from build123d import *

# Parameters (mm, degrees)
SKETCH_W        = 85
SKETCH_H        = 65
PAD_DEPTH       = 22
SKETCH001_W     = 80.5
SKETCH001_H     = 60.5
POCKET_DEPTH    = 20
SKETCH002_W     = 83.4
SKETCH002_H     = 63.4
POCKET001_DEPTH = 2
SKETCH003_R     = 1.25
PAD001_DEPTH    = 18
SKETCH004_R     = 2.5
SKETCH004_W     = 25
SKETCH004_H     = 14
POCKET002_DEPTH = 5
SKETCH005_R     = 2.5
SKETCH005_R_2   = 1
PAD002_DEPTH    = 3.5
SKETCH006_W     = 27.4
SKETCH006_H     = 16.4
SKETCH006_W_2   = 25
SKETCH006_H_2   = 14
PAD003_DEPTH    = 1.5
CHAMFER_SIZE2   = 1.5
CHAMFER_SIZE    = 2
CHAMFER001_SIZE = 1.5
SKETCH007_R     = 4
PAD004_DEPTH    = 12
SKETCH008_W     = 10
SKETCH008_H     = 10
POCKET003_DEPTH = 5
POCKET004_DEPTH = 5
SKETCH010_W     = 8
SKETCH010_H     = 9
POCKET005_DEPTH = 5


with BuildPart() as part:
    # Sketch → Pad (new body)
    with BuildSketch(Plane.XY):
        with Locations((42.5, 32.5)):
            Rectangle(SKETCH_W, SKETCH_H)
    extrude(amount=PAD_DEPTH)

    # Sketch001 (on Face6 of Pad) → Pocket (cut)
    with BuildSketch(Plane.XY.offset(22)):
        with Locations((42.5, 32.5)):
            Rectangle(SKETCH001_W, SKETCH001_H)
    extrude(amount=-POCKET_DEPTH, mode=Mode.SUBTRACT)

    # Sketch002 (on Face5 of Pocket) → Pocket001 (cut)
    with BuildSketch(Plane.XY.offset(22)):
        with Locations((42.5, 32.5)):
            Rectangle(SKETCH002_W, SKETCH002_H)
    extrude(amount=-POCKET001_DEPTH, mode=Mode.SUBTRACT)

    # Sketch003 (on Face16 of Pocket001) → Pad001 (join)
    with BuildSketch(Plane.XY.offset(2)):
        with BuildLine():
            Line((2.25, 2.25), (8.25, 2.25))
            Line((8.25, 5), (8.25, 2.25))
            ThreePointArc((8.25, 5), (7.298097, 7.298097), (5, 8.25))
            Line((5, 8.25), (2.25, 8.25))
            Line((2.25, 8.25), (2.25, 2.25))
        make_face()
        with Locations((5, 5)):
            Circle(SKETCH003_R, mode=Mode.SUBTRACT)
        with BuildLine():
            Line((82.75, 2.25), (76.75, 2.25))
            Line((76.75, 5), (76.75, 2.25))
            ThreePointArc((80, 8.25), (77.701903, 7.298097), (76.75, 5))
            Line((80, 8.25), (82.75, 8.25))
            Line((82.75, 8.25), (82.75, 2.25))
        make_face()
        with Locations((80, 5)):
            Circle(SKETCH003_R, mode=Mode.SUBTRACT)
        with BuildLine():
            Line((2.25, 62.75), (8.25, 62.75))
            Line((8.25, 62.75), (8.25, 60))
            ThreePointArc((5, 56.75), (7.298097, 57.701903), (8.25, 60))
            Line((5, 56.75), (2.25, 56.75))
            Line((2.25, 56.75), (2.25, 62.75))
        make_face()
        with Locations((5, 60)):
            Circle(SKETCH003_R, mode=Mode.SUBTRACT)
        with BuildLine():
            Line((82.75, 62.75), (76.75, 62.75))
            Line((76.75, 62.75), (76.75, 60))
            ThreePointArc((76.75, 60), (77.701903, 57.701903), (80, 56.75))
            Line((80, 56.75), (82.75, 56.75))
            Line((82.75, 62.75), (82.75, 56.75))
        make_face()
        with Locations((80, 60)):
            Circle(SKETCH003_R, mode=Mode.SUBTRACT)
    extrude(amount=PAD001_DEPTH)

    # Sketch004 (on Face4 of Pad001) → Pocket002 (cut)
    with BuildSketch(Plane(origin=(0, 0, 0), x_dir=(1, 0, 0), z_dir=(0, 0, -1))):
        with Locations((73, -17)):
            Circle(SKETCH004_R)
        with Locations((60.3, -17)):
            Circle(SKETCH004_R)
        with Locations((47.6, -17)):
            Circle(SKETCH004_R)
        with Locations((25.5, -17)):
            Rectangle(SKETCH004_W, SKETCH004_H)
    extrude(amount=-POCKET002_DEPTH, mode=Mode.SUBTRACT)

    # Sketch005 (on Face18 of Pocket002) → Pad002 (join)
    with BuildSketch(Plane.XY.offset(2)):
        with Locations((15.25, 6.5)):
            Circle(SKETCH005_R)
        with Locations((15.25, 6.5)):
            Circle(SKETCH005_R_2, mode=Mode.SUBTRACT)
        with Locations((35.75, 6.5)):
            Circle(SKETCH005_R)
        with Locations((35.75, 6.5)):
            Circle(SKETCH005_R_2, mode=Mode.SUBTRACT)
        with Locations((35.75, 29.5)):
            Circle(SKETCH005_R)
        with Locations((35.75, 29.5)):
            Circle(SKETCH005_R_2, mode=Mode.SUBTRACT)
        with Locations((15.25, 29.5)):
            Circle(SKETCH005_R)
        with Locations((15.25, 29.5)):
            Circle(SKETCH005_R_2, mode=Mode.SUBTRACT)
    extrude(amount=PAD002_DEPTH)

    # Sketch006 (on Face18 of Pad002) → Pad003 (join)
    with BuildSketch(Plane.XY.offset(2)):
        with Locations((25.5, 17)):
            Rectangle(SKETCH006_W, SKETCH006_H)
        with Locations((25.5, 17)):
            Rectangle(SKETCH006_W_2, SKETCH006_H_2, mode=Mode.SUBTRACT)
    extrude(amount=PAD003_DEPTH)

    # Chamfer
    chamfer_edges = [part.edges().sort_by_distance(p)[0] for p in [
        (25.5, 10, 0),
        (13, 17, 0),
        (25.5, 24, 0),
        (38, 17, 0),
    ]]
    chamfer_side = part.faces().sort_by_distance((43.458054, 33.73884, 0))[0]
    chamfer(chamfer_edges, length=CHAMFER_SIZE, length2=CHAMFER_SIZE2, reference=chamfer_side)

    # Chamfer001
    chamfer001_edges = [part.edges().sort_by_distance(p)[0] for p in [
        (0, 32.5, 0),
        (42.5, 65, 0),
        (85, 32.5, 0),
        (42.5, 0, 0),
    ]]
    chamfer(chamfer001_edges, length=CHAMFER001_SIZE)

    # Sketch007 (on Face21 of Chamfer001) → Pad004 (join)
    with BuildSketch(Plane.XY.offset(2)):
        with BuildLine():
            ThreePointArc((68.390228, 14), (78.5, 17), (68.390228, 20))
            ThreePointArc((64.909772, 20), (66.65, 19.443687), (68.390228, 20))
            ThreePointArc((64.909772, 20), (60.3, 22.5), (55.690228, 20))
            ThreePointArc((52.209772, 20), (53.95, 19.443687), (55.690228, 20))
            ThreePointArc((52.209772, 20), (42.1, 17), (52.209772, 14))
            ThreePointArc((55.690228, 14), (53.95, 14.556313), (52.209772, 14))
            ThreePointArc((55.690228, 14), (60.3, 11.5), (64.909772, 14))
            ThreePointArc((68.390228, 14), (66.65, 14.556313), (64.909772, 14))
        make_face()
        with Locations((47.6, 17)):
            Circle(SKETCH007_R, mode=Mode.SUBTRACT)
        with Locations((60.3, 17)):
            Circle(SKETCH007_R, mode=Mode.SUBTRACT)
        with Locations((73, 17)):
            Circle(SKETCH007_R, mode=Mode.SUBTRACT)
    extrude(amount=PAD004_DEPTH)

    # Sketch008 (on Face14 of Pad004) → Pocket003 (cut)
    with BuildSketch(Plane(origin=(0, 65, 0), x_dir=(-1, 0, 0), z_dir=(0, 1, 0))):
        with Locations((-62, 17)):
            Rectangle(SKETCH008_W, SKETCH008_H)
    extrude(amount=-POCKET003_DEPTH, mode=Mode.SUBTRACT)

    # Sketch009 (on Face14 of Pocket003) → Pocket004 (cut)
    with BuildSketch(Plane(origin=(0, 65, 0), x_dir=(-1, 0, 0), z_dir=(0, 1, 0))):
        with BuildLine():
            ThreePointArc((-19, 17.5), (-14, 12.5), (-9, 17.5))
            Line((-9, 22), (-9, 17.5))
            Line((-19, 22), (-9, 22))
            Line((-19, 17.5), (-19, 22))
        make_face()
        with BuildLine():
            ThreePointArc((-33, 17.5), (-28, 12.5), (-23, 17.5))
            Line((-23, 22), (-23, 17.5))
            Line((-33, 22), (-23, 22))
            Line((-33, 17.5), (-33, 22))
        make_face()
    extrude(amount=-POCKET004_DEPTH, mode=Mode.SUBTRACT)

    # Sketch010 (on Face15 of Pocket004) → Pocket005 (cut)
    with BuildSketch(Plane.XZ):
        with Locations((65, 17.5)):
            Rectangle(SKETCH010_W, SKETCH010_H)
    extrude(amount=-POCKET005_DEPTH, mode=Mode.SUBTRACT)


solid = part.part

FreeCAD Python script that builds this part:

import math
import FreeCAD as App
import Part
import Sketcher


def edges_at(feature, points):
    """Names of the edges that pass closest to the given points."""
    edges = feature.Shape.Edges
    near = lambda p: min(range(len(edges)), key=lambda i: edges[i].distToShape(Part.Vertex(*p))[0])
    return sorted({f"Edge{near(p) + 1}" for p in points})


def add_polygon(sketch, points):
    """Adds a closed chain of lines whose ends are joined by coincident constraints."""
    first, n = sketch.GeometryCount, len(points)
    for a, b in zip(points, points[1:] + points[:1]):
        sketch.addGeometry(Part.LineSegment(App.Vector(*a, 0), App.Vector(*b, 0)), False)
    for i in range(n):
        sketch.addConstraint(Sketcher.Constraint("Coincident", first + i, 2, first + (i + 1) % n, 1))

doc = App.newDocument("Part")
params = doc.addObject("Spreadsheet::Sheet", "Params")
for row, (alias, value) in enumerate([
    ("sketch1_width", "85 mm"),
    ("sketch1_height", "65 mm"),
    ("pad1_length", "22 mm"),
    ("sketch2_width", "80.5 mm"),
    ("sketch2_height", "60.5 mm"),
    ("pocket1_length", "20 mm"),
    ("sketch3_width", "83.4 mm"),
    ("sketch3_height", "63.4 mm"),
    ("pocket2_length", "2 mm"),
    ("sketch4_diameter", "2.5 mm"),
    ("sketch4_width", "6 mm"),
    ("sketch4_radius", "3.25 mm"),
    ("pad2_length", "18 mm"),
    ("sketch5_diameter", "5 mm"),
    ("sketch5_width", "25 mm"),
    ("sketch5_height", "14 mm"),
    ("pocket3_length", "5 mm"),
    ("sketch6_diameter", "5 mm"),
    ("sketch6_diameter2", "2 mm"),
    ("pad3_length", "3.5 mm"),
    ("sketch7_width", "25 mm"),
    ("sketch7_height", "14 mm"),
    ("sketch7_width2", "27.4 mm"),
    ("sketch7_height2", "16.4 mm"),
    ("pad4_length", "1.5 mm"),
    ("chamfer_size", "2 mm"),
    ("chamfer_size2", "1.5 mm"),
    ("chamfer2_size", "1.5 mm"),
    ("sketch8_diameter", "8 mm"),
    ("sketch8_radius", "3 mm"),
    ("sketch8_radius2", "5.5 mm"),
    ("pad5_length", "12 mm"),
    ("sketch9_width", "10 mm"),
    ("pocket4_length", "5 mm"),
    ("sketch10_radius", "5 mm"),
    ("sketch10_height", "4.5 mm"),
    ("pocket5_length", "5 mm"),
    ("sketch11_width", "8 mm"),
    ("sketch11_height", "9 mm"),
    ("pocket6_length", "5 mm"),
], start=1):
    params.set(f"A{row}", alias)
    params.set(f"B{row}", "=" + value)
    params.setAlias(f"B{row}", alias)

body = doc.addObject("PartDesign::Body", "Body")

sketch1 = body.newObject("Sketcher::SketchObject", "Sketch")
sketch1.AttachmentSupport = (doc.getObject("XY_Plane"), [""])
sketch1.MapMode = "FlatFace"
add_polygon(sketch1, [(0, 65), (0, 0), (85, 0), (85, 65)])
sketch1.addConstraint([
    Sketcher.Constraint("Vertical", 0),
    Sketcher.Constraint("Horizontal", 1),
    Sketcher.Constraint("Vertical", 2),
    Sketcher.Constraint("Horizontal", 3),
    Sketcher.Constraint("Coincident", 0, 2, -1, 1),
    Sketcher.Constraint("DistanceX", 1, 1, 1, 2, 85.0),
    Sketcher.Constraint("DistanceY", 0, 2, 0, 1, 65.0),
])
sketch1.setExpression("Constraints[9]", "Params.sketch1_width")
sketch1.setExpression("Constraints[10]", "Params.sketch1_height")
pad1 = body.newObject("PartDesign::Pad", "Pad")
pad1.Profile = sketch1
pad1.setExpression("Length", "Params.pad1_length")

sketch2 = body.newObject("Sketcher::SketchObject", "Sketch001")
sketch2.AttachmentSupport = (doc.getObject("XY_Plane"), [""])
sketch2.MapMode = "FlatFace"
sketch2.AttachmentOffset = App.Placement(App.Vector(0, 0, 22), App.Rotation())
add_polygon(sketch2, [(2, 63), (2, 2), (83, 2), (83, 63)])
sketch2.addConstraint([
    Sketcher.Constraint("Vertical", 0),
    Sketcher.Constraint("Horizontal", 1),
    Sketcher.Constraint("Vertical", 2),
    Sketcher.Constraint("Horizontal", 3),
    Sketcher.Constraint("DistanceX", 1, 1, 1, 2, 80.5),
    Sketcher.Constraint("DistanceY", 0, 2, 0, 1, 60.5),
    Sketcher.Constraint("DistanceX", -1, 1, 0, 2, 2.25),
    Sketcher.Constraint("DistanceY", -1, 1, 0, 2, 2.25),
])
sketch2.setExpression("Constraints[8]", "Params.sketch2_width")
sketch2.setExpression("Constraints[9]", "Params.sketch2_height")
pocket1 = body.newObject("PartDesign::Pocket", "Pocket")
pocket1.Profile = sketch2
pocket1.setExpression("Length", "Params.pocket1_length")

sketch3 = body.newObject("Sketcher::SketchObject", "Sketch002")
sketch3.AttachmentSupport = (doc.getObject("XY_Plane"), [""])
sketch3.MapMode = "FlatFace"
sketch3.AttachmentOffset = App.Placement(App.Vector(0, 0, 22), App.Rotation())
add_polygon(sketch3, [(1, 64), (1, 1), (84, 1), (84, 64)])
sketch3.addConstraint([
    Sketcher.Constraint("Vertical", 0),
    Sketcher.Constraint("Horizontal", 1),
    Sketcher.Constraint("Vertical", 2),
    Sketcher.Constraint("Horizontal", 3),
    Sketcher.Constraint("DistanceX", 1, 1, 1, 2, 83.4),
    Sketcher.Constraint("DistanceY", 0, 2, 0, 1, 63.4),
    Sketcher.Constraint("DistanceX", -1, 1, 0, 2, 0.8),
    Sketcher.Constraint("DistanceY", -1, 1, 0, 2, 0.8),
])
sketch3.setExpression("Constraints[8]", "Params.sketch3_width")
sketch3.setExpression("Constraints[9]", "Params.sketch3_height")
pocket2 = body.newObject("PartDesign::Pocket", "Pocket001")
pocket2.Profile = sketch3
pocket2.setExpression("Length", "Params.pocket2_length")

sketch4 = body.newObject("Sketcher::SketchObject", "Sketch003")
sketch4.AttachmentSupport = (doc.getObject("XY_Plane"), [""])
sketch4.MapMode = "FlatFace"
sketch4.AttachmentOffset = App.Placement(App.Vector(0, 0, 2), App.Rotation())
sketch4.addGeometry([
    Part.LineSegment(App.Vector(2.2, 2.2, 0), App.Vector(8.2, 2.2, 0)),
    Part.LineSegment(App.Vector(8.2, 2.2, 0), App.Vector(8.2, 5, 0)),
    Part.ArcOfCircle(Part.Circle(App.Vector(5, 5, 0), App.Vector(0, 0, 1), 3.3), math.radians(0), math.radians(90)),
    Part.LineSegment(App.Vector(5, 8.2, 0), App.Vector(2.2, 8.2, 0)),
    Part.LineSegment(App.Vector(2.2, 8.2, 0), App.Vector(2.2, 2.2, 0)),
    Part.Circle(App.Vector(5, 5, 0), App.Vector(0, 0, 1), 1.2),
    Part.LineSegment(App.Vector(76.8, 2.2, 0), App.Vector(82.8, 2.2, 0)),
    Part.LineSegment(App.Vector(82.8, 2.2, 0), App.Vector(82.8, 8.2, 0)),
    Part.LineSegment(App.Vector(82.8, 8.2, 0), App.Vector(80, 8.2, 0)),
    Part.ArcOfCircle(Part.Circle(App.Vector(80, 5, 0), App.Vector(0, 0, 1), 3.3), math.radians(90), math.radians(180)),
    Part.LineSegment(App.Vector(76.8, 5, 0), App.Vector(76.8, 2.2, 0)),
    Part.Circle(App.Vector(80, 5, 0), App.Vector(0, 0, 1), 1.2),
    Part.LineSegment(App.Vector(8.2, 62.8, 0), App.Vector(2.2, 62.8, 0)),
    Part.LineSegment(App.Vector(2.2, 62.8, 0), App.Vector(2.2, 56.8, 0)),
    Part.LineSegment(App.Vector(2.2, 56.8, 0), App.Vector(5, 56.8, 0)),
    Part.ArcOfCircle(Part.Circle(App.Vector(5, 60, 0), App.Vector(0, 0, 1), 3.3), math.radians(-90), math.radians(0)),
    Part.LineSegment(App.Vector(8.2, 60, 0), App.Vector(8.2, 62.8, 0)),
    Part.Circle(App.Vector(5, 60, 0), App.Vector(0, 0, 1), 1.2),
    Part.LineSegment(App.Vector(82.8, 62.8, 0), App.Vector(76.8, 62.8, 0)),
    Part.LineSegment(App.Vector(76.8, 62.8, 0), App.Vector(76.8, 60, 0)),
    Part.ArcOfCircle(Part.Circle(App.Vector(80, 60, 0), App.Vector(0, 0, 1), 3.3), math.radians(-180), math.radians(-90)),
    Part.LineSegment(App.Vector(80, 56.8, 0), App.Vector(82.8, 56.8, 0)),
    Part.LineSegment(App.Vector(82.8, 56.8, 0), App.Vector(82.8, 62.8, 0)),
    Part.Circle(App.Vector(80, 60, 0), App.Vector(0, 0, 1), 1.2),
], False)
sketch4.addConstraint([
    Sketcher.Constraint("Coincident", 0, 2, 1, 1),
    Sketcher.Constraint("Tangent", 1, 2, 2, 1),
    Sketcher.Constraint("Tangent", 2, 2, 3, 1),
    Sketcher.Constraint("Coincident", 3, 2, 4, 1),
    Sketcher.Constraint("Coincident", 4, 2, 0, 1),
    Sketcher.Constraint("Coincident", 6, 2, 7, 1),
    Sketcher.Constraint("Coincident", 7, 2, 8, 1),
    Sketcher.Constraint("Tangent", 8, 2, 9, 1),
    Sketcher.Constraint("Tangent", 9, 2, 10, 1),
    Sketcher.Constraint("Coincident", 10, 2, 6, 1),
    Sketcher.Constraint("Coincident", 12, 2, 13, 1),
    Sketcher.Constraint("Coincident", 13, 2, 14, 1),
    Sketcher.Constraint("Tangent", 14, 2, 15, 1),
    Sketcher.Constraint("Tangent", 15, 2, 16, 1),
    Sketcher.Constraint("Coincident", 16, 2, 12, 1),
    Sketcher.Constraint("Coincident", 18, 2, 19, 1),
    Sketcher.Constraint("Tangent", 19, 2, 20, 1),
    Sketcher.Constraint("Tangent", 20, 2, 21, 1),
    Sketcher.Constraint("Coincident", 21, 2, 22, 1),
    Sketcher.Constraint("Coincident", 22, 2, 18, 1),
    Sketcher.Constraint("Horizontal", 0),
    Sketcher.Constraint("Vertical", 1),
    Sketcher.Constraint("Horizontal", 3),
    Sketcher.Constraint("Vertical", 4),
    Sketcher.Constraint("Horizontal", 6),
    Sketcher.Constraint("Vertical", 7),
    Sketcher.Constraint("Horizontal", 8),
    Sketcher.Constraint("Vertical", 10),
    Sketcher.Constraint("Horizontal", 12),
    Sketcher.Constraint("Vertical", 13),
    Sketcher.Constraint("Horizontal", 14),
    Sketcher.Constraint("Vertical", 16),
    Sketcher.Constraint("Horizontal", 18),
    Sketcher.Constraint("Vertical", 19),
    Sketcher.Constraint("Horizontal", 21),
    Sketcher.Constraint("Vertical", 22),
    Sketcher.Constraint("Coincident", 5, 3, 2, 3),
    Sketcher.Constraint("Coincident", 11, 3, 9, 3),
    Sketcher.Constraint("Coincident", 17, 3, 15, 3),
    Sketcher.Constraint("Coincident", 23, 3, 20, 3),
    Sketcher.Constraint("Equal", 2, 9),
    Sketcher.Constraint("Equal", 5, 11),
    Sketcher.Constraint("Equal", 9, 15),
    Sketcher.Constraint("Equal", 11, 17),
    Sketcher.Constraint("Equal", 15, 20),
    Sketcher.Constraint("Equal", 17, 23),
    Sketcher.Constraint("Horizontal", 5, 3, 9, 3),
    Sketcher.Constraint("Horizontal", 17, 3, 20, 3),
    Sketcher.Constraint("Horizontal", 4, 2, 6, 2),
    Sketcher.Constraint("Horizontal", 16, 2, 18, 2),
    Sketcher.Constraint("Vertical", 5, 3, 15, 3),
    Sketcher.Constraint("Vertical", 11, 3, 20, 3),
    Sketcher.Constraint("Vertical", 4, 2, 12, 2),
    Sketcher.Constraint("Vertical", 7, 2, 21, 2),
    Sketcher.Constraint("Equal", 0, 6),
    Sketcher.Constraint("Equal", 21, 1),
    Sketcher.Constraint("Equal", 7, 13),
    Sketcher.Constraint("Diameter", 5, 2.5),
    Sketcher.Constraint("DistanceX", 0, 1, 0, 2, 6.0),
    Sketcher.Constraint("Radius", 2, 3.25),
    Sketcher.Constraint("DistanceX", -1, 1, 2, 3, 5.0),
    Sketcher.Constraint("DistanceY", -1, 1, 2, 3, 5.0),
    Sketcher.Constraint("DistanceX", -1, 1, 9, 3, 80.0),
    Sketcher.Constraint("DistanceY", -1, 1, 15, 3, 60.0),
])
sketch4.setExpression("Constraints[57]", "Params.sketch4_diameter")
sketch4.setExpression("Constraints[58]", "Params.sketch4_width")
sketch4.setExpression("Constraints[59]", "Params.sketch4_radius")
pad2 = body.newObject("PartDesign::Pad", "Pad001")
pad2.Profile = sketch4
pad2.setExpression("Length", "Params.pad2_length")

sketch5 = body.newObject("Sketcher::SketchObject", "Sketch004")
sketch5.AttachmentSupport = (doc.getObject("XY_Plane"), [""])
sketch5.MapMode = "FlatFace"
sketch5.addGeometry(Part.Circle(App.Vector(73, 17, 0), App.Vector(0, 0, 1), 2.5), False)
sketch5.addGeometry(Part.Circle(App.Vector(60.3, 17, 0), App.Vector(0, 0, 1), 2.5), False)
sketch5.addGeometry(Part.Circle(App.Vector(47.6, 17, 0), App.Vector(0, 0, 1), 2.5), False)
add_polygon(sketch5, [(13, 10), (13, 24), (38, 24), (38, 10)])
sketch5.addConstraint([
    Sketcher.Constraint("Vertical", 3),
    Sketcher.Constraint("Horizontal", 4),
    Sketcher.Constraint("Vertical", 5),
    Sketcher.Constraint("Horizontal", 6),
    Sketcher.Constraint("Equal", 0, 1),
    Sketcher.Constraint("Equal", 1, 2),
    Sketcher.Constraint("Horizontal", 0, 3, 1, 3),
    Sketcher.Constraint("Horizontal", 1, 3, 2, 3),
    Sketcher.Constraint("Diameter", 0, 5.0),
    Sketcher.Constraint("DistanceX", 4, 1, 4, 2, 25.0),
    Sketcher.Constraint("DistanceY", 3, 1, 3, 2, 14.0),
    Sketcher.Constraint("DistanceX", -1, 1, 0, 3, 73.0),
    Sketcher.Constraint("DistanceY", -1, 1, 0, 3, 17.0),
    Sketcher.Constraint("DistanceX", -1, 1, 3, 2, 13.0),
    Sketcher.Constraint("DistanceY", -1, 1, 3, 2, 24.0),
    Sketcher.Constraint("DistanceX", -1, 1, 1, 3, 60.3),
    Sketcher.Constraint("DistanceX", -1, 1, 2, 3, 47.6),
])
sketch5.setExpression("Constraints[12]", "Params.sketch5_diameter")
sketch5.setExpression("Constraints[13]", "Params.sketch5_width")
sketch5.setExpression("Constraints[14]", "Params.sketch5_height")
pocket3 = body.newObject("PartDesign::Pocket", "Pocket002")
pocket3.Profile = sketch5
pocket3.setExpression("Length", "Params.pocket3_length")
pocket3.Reversed = True

sketch6 = body.newObject("Sketcher::SketchObject", "Sketch005")
sketch6.AttachmentSupport = (doc.getObject("XY_Plane"), [""])
sketch6.MapMode = "FlatFace"
sketch6.AttachmentOffset = App.Placement(App.Vector(0, 0, 2), App.Rotation())
sketch6.addGeometry([
    Part.Circle(App.Vector(15.2, 6.5, 0), App.Vector(0, 0, 1), 2.5),
    Part.Circle(App.Vector(15.2, 6.5, 0), App.Vector(0, 0, 1), 1),
    Part.Circle(App.Vector(35.8, 6.5, 0), App.Vector(0, 0, 1), 2.5),
    Part.Circle(App.Vector(35.8, 6.5, 0), App.Vector(0, 0, 1), 1),
    Part.Circle(App.Vector(35.8, 29.5, 0), App.Vector(0, 0, 1), 2.5),
    Part.Circle(App.Vector(35.8, 29.5, 0), App.Vector(0, 0, 1), 1),
    Part.Circle(App.Vector(15.2, 29.5, 0), App.Vector(0, 0, 1), 2.5),
    Part.Circle(App.Vector(15.2, 29.5, 0), App.Vector(0, 0, 1), 1),
], False)
sketch6.addConstraint([
    Sketcher.Constraint("Coincident", 1, 3, 0, 3),
    Sketcher.Constraint("Coincident", 3, 3, 2, 3),
    Sketcher.Constraint("Coincident", 5, 3, 4, 3),
    Sketcher.Constraint("Coincident", 7, 3, 6, 3),
    Sketcher.Constraint("Equal", 0, 2),
    Sketcher.Constraint("Equal", 1, 3),
    Sketcher.Constraint("Equal", 2, 4),
    Sketcher.Constraint("Equal", 3, 5),
    Sketcher.Constraint("Equal", 4, 6),
    Sketcher.Constraint("Equal", 5, 7),
    Sketcher.Constraint("Horizontal", 1, 3, 2, 3),
    Sketcher.Constraint("Horizontal", 5, 3, 6, 3),
    Sketcher.Constraint("Vertical", 3, 3, 4, 3),
    Sketcher.Constraint("Vertical", 1, 3, 6, 3),
    Sketcher.Constraint("Diameter", 0, 5.0),
    Sketcher.Constraint("Diameter", 1, 2.0),
    Sketcher.Constraint("DistanceY", 2, 3, 4, 3, 23.0),
    Sketcher.Constraint("DistanceY", -1, 1, 0, 3, 6.5),
    Sketcher.Constraint("DistanceX", 0, 3, 2, 3, 20.5),
    Sketcher.Constraint("DistanceX", -1, 1, 0, 3, 15.25),
])
sketch6.setExpression("Constraints[14]", "Params.sketch6_diameter")
sketch6.setExpression("Constraints[15]", "Params.sketch6_diameter2")
pad3 = body.newObject("PartDesign::Pad", "Pad002")
pad3.Profile = sketch6
pad3.setExpression("Length", "Params.pad3_length")

sketch7 = body.newObject("Sketcher::SketchObject", "Sketch006")
sketch7.AttachmentSupport = (doc.getObject("XY_Plane"), [""])
sketch7.MapMode = "FlatFace"
sketch7.AttachmentOffset = App.Placement(App.Vector(0, 0, 2), App.Rotation())
add_polygon(sketch7, [(12, 25), (12, 9), (39, 9), (39, 25)])
add_polygon(sketch7, [(38, 10), (13, 10), (13, 24), (38, 24)])
sketch7.addConstraint([
    Sketcher.Constraint("Vertical", 0),
    Sketcher.Constraint("Horizontal", 1),
    Sketcher.Constraint("Vertical", 2),
    Sketcher.Constraint("Horizontal", 3),
    Sketcher.Constraint("Horizontal", 4),
    Sketcher.Constraint("Vertical", 5),
    Sketcher.Constraint("Horizontal", 6),
    Sketcher.Constraint("Vertical", 7),
    Sketcher.Constraint("DistanceX", 4, 2, 4, 1, 25.0),
    Sketcher.Constraint("DistanceY", 5, 1, 5, 2, 14.0),
    Sketcher.Constraint("DistanceX", 1, 1, 1, 2, 27.4),
    Sketcher.Constraint("DistanceY", 0, 2, 0, 1, 16.4),
    Sketcher.Constraint("DistanceX", -1, 1, 4, 2, 13.0),
    Sketcher.Constraint("DistanceY", -1, 1, 4, 2, 10.0),
    Sketcher.Constraint("DistanceX", -1, 1, 0, 2, 11.8),
    Sketcher.Constraint("DistanceY", -1, 1, 0, 2, 8.8),
])
sketch7.setExpression("Constraints[16]", "Params.sketch7_width")
sketch7.setExpression("Constraints[17]", "Params.sketch7_height")
sketch7.setExpression("Constraints[18]", "Params.sketch7_width2")
sketch7.setExpression("Constraints[19]", "Params.sketch7_height2")
pad4 = body.newObject("PartDesign::Pad", "Pad003")
pad4.Profile = sketch7
pad4.setExpression("Length", "Params.pad4_length")
doc.recompute()

chamfer = body.newObject("PartDesign::Chamfer", "Chamfer")
chamfer.Base = (pad4, edges_at(pad4, [
    (25.5, 10, 0),
    (13, 17, 0),
    (25.5, 24, 0),
    (38, 17, 0),
]))
chamfer.ChamferType = "Two distances"
chamfer.setExpression("Size", "Params.chamfer_size")
chamfer.setExpression("Size2", "Params.chamfer_size2")
doc.recompute()

chamfer2 = body.newObject("PartDesign::Chamfer", "Chamfer001")
chamfer2.Base = (chamfer, edges_at(chamfer, [
    (0, 32.5, 0),
    (42.5, 65, 0),
    (85, 32.5, 0),
    (42.5, 0, 0),
]))
chamfer2.setExpression("Size", "Params.chamfer2_size")

sketch8 = body.newObject("Sketcher::SketchObject", "Sketch007")
sketch8.AttachmentSupport = (doc.getObject("XY_Plane"), [""])
sketch8.MapMode = "FlatFace"
sketch8.AttachmentOffset = App.Placement(App.Vector(0, 0, 2), App.Rotation())
sketch8.addGeometry([
    Part.ArcOfCircle(Part.Circle(App.Vector(73, 17, 0), App.Vector(0, 0, 1), 5.5), math.radians(-147), math.radians(147)),
    Part.ArcOfCircle(Part.Circle(App.Vector(66.7, 22.4, 0), App.Vector(0, 0, 1), 3), math.radians(-125), math.radians(-55)),
    Part.ArcOfCircle(Part.Circle(App.Vector(60.3, 17, 0), App.Vector(0, 0, 1), 5.5), math.radians(33), math.radians(147)),
    Part.ArcOfCircle(Part.Circle(App.Vector(54, 22.4, 0), App.Vector(0, 0, 1), 3), math.radians(-125), math.radians(-55)),
    Part.ArcOfCircle(Part.Circle(App.Vector(47.6, 17, 0), App.Vector(0, 0, 1), 5.5), math.radians(33), math.radians(327)),
    Part.ArcOfCircle(Part.Circle(App.Vector(54, 11.6, 0), App.Vector(0, 0, 1), 3), math.radians(55), math.radians(125)),
    Part.ArcOfCircle(Part.Circle(App.Vector(60.3, 17, 0), App.Vector(0, 0, 1), 5.5), math.radians(-147), math.radians(-33)),
    Part.ArcOfCircle(Part.Circle(App.Vector(66.7, 11.6, 0), App.Vector(0, 0, 1), 3), math.radians(55), math.radians(125)),
    Part.Circle(App.Vector(47.6, 17, 0), App.Vector(0, 0, 1), 4),
    Part.Circle(App.Vector(60.3, 17, 0), App.Vector(0, 0, 1), 4),
    Part.Circle(App.Vector(73, 17, 0), App.Vector(0, 0, 1), 4),
], False)
sketch8.addConstraint([
    Sketcher.Constraint("Coincident", 0, 2, 1, 2),
    Sketcher.Constraint("Coincident", 1, 1, 2, 1),
    Sketcher.Constraint("Coincident", 2, 2, 3, 2),
    Sketcher.Constraint("Coincident", 3, 1, 4, 1),
    Sketcher.Constraint("Coincident", 4, 2, 5, 2),
    Sketcher.Constraint("Coincident", 5, 1, 6, 1),
    Sketcher.Constraint("Coincident", 6, 2, 7, 2),
    Sketcher.Constraint("Coincident", 7, 1, 0, 1),
    Sketcher.Constraint("Coincident", 6, 3, 2, 3),
    Sketcher.Constraint("Coincident", 8, 3, 4, 3),
    Sketcher.Constraint("Coincident", 9, 3, 2, 3),
    Sketcher.Constraint("Coincident", 10, 3, 0, 3),
    Sketcher.Constraint("Equal", 0, 2),
    Sketcher.Constraint("Equal", 1, 3),
    Sketcher.Constraint("Equal", 2, 4),
    Sketcher.Constraint("Equal", 3, 5),
    Sketcher.Constraint("Equal", 4, 6),
    Sketcher.Constraint("Equal", 5, 7),
    Sketcher.Constraint("Equal", 8, 9),
    Sketcher.Constraint("Equal", 9, 10),
    Sketcher.Constraint("Horizontal", 0, 3, 2, 3),
    Sketcher.Constraint("Horizontal", 1, 3, 3, 3),
    Sketcher.Constraint("Horizontal", 2, 3, 4, 3),
    Sketcher.Constraint("Horizontal", 5, 3, 7, 3),
    Sketcher.Constraint("Horizontal", 0, 2, 1, 1),
    Sketcher.Constraint("Horizontal", 1, 1, 2, 2),
    Sketcher.Constraint("Horizontal", 2, 2, 3, 1),
    Sketcher.Constraint("Horizontal", 4, 2, 5, 1),
    Sketcher.Constraint("Horizontal", 5, 1, 6, 2),
    Sketcher.Constraint("Vertical", 3, 1, 4, 2),
    Sketcher.Constraint("Diameter", 8, 8.0),
    Sketcher.Constraint("Radius", 1, 3.0),
    Sketcher.Constraint("Radius", 0, 5.5),
    Sketcher.Constraint("DistanceX", -1, 1, 0, 3, 73.0),
    Sketcher.Constraint("DistanceY", -1, 1, 0, 3, 17.0),
    Sketcher.Constraint("DistanceY", -1, 1, 0, 2, 20.0),
    Sketcher.Constraint("DistanceX", -1, 1, 2, 3, 60.3),
])
sketch8.setExpression("Constraints[30]", "Params.sketch8_diameter")
sketch8.setExpression("Constraints[31]", "Params.sketch8_radius")
sketch8.setExpression("Constraints[32]", "Params.sketch8_radius2")
pad5 = body.newObject("PartDesign::Pad", "Pad004")
pad5.Profile = sketch8
pad5.setExpression("Length", "Params.pad5_length")

sketch9 = body.newObject("Sketcher::SketchObject", "Sketch008")
sketch9.AttachmentSupport = (doc.getObject("XZ_Plane"), [""])
sketch9.MapMode = "FlatFace"
sketch9.AttachmentOffset = App.Placement(App.Vector(0, 0, -65), App.Rotation())
add_polygon(sketch9, [(67, 22), (67, 12), (57, 12), (57, 22)])
sketch9.addConstraint([
    Sketcher.Constraint("Vertical", 0),
    Sketcher.Constraint("Horizontal", 1),
    Sketcher.Constraint("Vertical", 2),
    Sketcher.Constraint("Horizontal", 3),
    Sketcher.Constraint("Equal", 3, 0),
    Sketcher.Constraint("DistanceX", 1, 2, 1, 1, 10.0),
    Sketcher.Constraint("DistanceX", -1, 1, 0, 2, 67.0),
    Sketcher.Constraint("DistanceY", -1, 1, 0, 2, 12.0),
])
sketch9.setExpression("Constraints[9]", "Params.sketch9_width")
pocket4 = body.newObject("PartDesign::Pocket", "Pocket003")
pocket4.Profile = sketch9
pocket4.setExpression("Length", "Params.pocket4_length")
pocket4.Reversed = True

sketch10 = body.newObject("Sketcher::SketchObject", "Sketch009")
sketch10.AttachmentSupport = (doc.getObject("XZ_Plane"), [""])
sketch10.MapMode = "FlatFace"
sketch10.AttachmentOffset = App.Placement(App.Vector(0, 0, -65), App.Rotation())
sketch10.addGeometry([
    Part.ArcOfCircle(Part.Circle(App.Vector(14, 17.5, 0), App.Vector(0, 0, 1), 5), math.radians(180), math.radians(360)),
    Part.LineSegment(App.Vector(9, 17.5, 0), App.Vector(9, 22, 0)),
    Part.LineSegment(App.Vector(9, 22, 0), App.Vector(19, 22, 0)),
    Part.LineSegment(App.Vector(19, 22, 0), App.Vector(19, 17.5, 0)),
    Part.ArcOfCircle(Part.Circle(App.Vector(28, 17.5, 0), App.Vector(0, 0, 1), 5), math.radians(180), math.radians(360)),
    Part.LineSegment(App.Vector(23, 17.5, 0), App.Vector(23, 22, 0)),
    Part.LineSegment(App.Vector(23, 22, 0), App.Vector(33, 22, 0)),
    Part.LineSegment(App.Vector(33, 22, 0), App.Vector(33, 17.5, 0)),
], False)
sketch10.addConstraint([
    Sketcher.Constraint("Tangent", 0, 1, 1, 1),
    Sketcher.Constraint("Coincident", 1, 2, 2, 1),
    Sketcher.Constraint("Coincident", 2, 2, 3, 1),
    Sketcher.Constraint("Tangent", 3, 2, 0, 2),
    Sketcher.Constraint("Tangent", 4, 1, 5, 1),
    Sketcher.Constraint("Coincident", 5, 2, 6, 1),
    Sketcher.Constraint("Coincident", 6, 2, 7, 1),
    Sketcher.Constraint("Tangent", 7, 2, 4, 2),
    Sketcher.Constraint("Vertical", 1),
    Sketcher.Constraint("Horizontal", 2),
    Sketcher.Constraint("Vertical", 3),
    Sketcher.Constraint("Vertical", 5),
    Sketcher.Constraint("Horizontal", 6),
    Sketcher.Constraint("Vertical", 7),
    Sketcher.Constraint("Equal", 0, 4),
    Sketcher.Constraint("Horizontal", 0, 3, 4, 3),
    Sketcher.Constraint("Horizontal", 2, 2, 5, 2),
    Sketcher.Constraint("Radius", 0, 5.0),
    Sketcher.Constraint("DistanceY", 1, 1, 1, 2, 4.5),
    Sketcher.Constraint("DistanceX", -1, 1, 0, 3, 14.0),
    Sketcher.Constraint("DistanceX", -1, 1, 4, 3, 28.0),
    Sketcher.Constraint("DistanceY", -1, 1, 1, 2, 22.0),
])
sketch10.setExpression("Constraints[17]", "Params.sketch10_radius")
sketch10.setExpression("Constraints[18]", "Params.sketch10_height")
pocket5 = body.newObject("PartDesign::Pocket", "Pocket004")
pocket5.Profile = sketch10
pocket5.setExpression("Length", "Params.pocket5_length")
pocket5.Reversed = True

sketch11 = body.newObject("Sketcher::SketchObject", "Sketch010")
sketch11.AttachmentSupport = (doc.getObject("XZ_Plane"), [""])
sketch11.MapMode = "FlatFace"
add_polygon(sketch11, [(61, 22), (61, 13), (69, 13), (69, 22)])
sketch11.addConstraint([
    Sketcher.Constraint("Vertical", 0),
    Sketcher.Constraint("Horizontal", 1),
    Sketcher.Constraint("Vertical", 2),
    Sketcher.Constraint("Horizontal", 3),
    Sketcher.Constraint("DistanceX", 1, 1, 1, 2, 8.0),
    Sketcher.Constraint("DistanceY", 0, 2, 0, 1, 9.0),
    Sketcher.Constraint("DistanceX", -1, 1, 0, 2, 61.0),
    Sketcher.Constraint("DistanceY", -1, 1, 0, 2, 13.0),
])
sketch11.setExpression("Constraints[8]", "Params.sketch11_width")
sketch11.setExpression("Constraints[9]", "Params.sketch11_height")
pocket6 = body.newObject("PartDesign::Pocket", "Pocket005")
pocket6.Profile = sketch11
pocket6.setExpression("Length", "Params.pocket6_length")

doc.recompute()
